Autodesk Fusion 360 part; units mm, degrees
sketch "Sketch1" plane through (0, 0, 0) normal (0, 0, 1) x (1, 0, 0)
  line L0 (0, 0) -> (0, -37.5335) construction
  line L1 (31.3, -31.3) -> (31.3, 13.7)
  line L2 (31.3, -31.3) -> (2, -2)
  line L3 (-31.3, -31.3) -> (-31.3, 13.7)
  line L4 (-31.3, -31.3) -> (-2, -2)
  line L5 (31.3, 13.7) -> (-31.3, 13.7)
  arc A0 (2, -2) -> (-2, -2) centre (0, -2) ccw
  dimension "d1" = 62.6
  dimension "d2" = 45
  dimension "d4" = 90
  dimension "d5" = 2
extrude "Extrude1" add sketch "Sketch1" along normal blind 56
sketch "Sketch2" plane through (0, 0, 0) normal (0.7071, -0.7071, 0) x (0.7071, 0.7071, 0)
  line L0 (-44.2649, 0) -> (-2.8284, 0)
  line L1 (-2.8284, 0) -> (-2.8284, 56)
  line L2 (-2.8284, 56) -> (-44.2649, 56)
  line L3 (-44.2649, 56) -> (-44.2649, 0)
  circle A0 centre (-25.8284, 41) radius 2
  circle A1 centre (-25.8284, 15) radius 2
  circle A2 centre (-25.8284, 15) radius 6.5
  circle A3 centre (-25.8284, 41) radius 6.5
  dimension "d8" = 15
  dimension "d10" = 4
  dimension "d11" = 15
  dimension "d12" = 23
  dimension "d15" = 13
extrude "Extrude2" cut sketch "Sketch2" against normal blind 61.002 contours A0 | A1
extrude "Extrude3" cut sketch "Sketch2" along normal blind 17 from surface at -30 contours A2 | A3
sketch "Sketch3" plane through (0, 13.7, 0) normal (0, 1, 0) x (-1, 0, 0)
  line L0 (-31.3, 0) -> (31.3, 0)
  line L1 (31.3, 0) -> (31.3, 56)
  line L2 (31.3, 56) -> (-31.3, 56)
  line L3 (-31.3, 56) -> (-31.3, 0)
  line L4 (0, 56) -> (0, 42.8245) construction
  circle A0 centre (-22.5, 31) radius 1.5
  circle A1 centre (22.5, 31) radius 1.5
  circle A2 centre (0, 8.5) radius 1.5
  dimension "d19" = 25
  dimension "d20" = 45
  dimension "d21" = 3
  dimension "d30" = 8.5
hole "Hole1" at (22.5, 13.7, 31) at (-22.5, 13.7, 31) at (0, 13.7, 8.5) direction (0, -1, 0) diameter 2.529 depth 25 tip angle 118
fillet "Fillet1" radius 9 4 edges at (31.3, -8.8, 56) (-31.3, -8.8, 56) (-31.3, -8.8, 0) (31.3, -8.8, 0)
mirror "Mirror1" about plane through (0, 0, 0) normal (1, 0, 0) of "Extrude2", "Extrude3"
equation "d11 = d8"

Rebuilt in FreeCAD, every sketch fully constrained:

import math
import FreeCAD as App
import Part
import Sketcher
Q = App.Units.Quantity


def edges_at(feature, points):
    """Names of the edges that pass closest to the given points."""
    edges = feature.Shape.Edges
    near = lambda p: min(range(len(edges)), key=lambda i: edges[i].distToShape(Part.Vertex(*p))[0])
    return sorted({f"Edge{near(p) + 1}" for p in points})

doc = App.newDocument("Part")
body = doc.addObject("PartDesign::Body", "Body")

sketch1 = body.newObject("Sketcher::SketchObject", "Sketch")
sketch1.AttachmentSupport = (doc.getObject("XY_Plane"), [""])
sketch1.MapMode = "FlatFace"
sketch1.addGeometry(Part.LineSegment(App.Vector(2, -2, 0), App.Vector(31.3, -31.3, 0)), False)
sketch1.addGeometry(Part.LineSegment(App.Vector(31.3, -31.3, 0), App.Vector(31.3, 13.7, 0)), False)
sketch1.addGeometry(Part.LineSegment(App.Vector(31.3, 13.7, 0), App.Vector(-31.3, 13.7, 0)), False)
sketch1.addGeometry(Part.LineSegment(App.Vector(-31.3, 13.7, 0), App.Vector(-31.3, -31.3, 0)), False)
sketch1.addGeometry(Part.LineSegment(App.Vector(-31.3, -31.3, 0), App.Vector(-2, -2, 0)), False)
sketch1.addGeometry(Part.ArcOfCircle(Part.Circle(App.Vector(0, -2, 0), App.Vector(0, 0, 1), 2), math.radians(0), math.radians(180)), False)
sketch1.addConstraint(Sketcher.Constraint("Coincident", 0, 2, 1, 1))
sketch1.addConstraint(Sketcher.Constraint("Coincident", 1, 2, 2, 1))
sketch1.addConstraint(Sketcher.Constraint("Coincident", 2, 2, 3, 1))
sketch1.addConstraint(Sketcher.Constraint("Coincident", 3, 2, 4, 1))
sketch1.addConstraint(Sketcher.Constraint("Coincident", 4, 2, 5, 2))
sketch1.addConstraint(Sketcher.Constraint("Coincident", 5, 1, 0, 1))
sketch1.addConstraint(Sketcher.Constraint("Vertical", 1))
sketch1.addConstraint(Sketcher.Constraint("Horizontal", 2))
sketch1.addConstraint(Sketcher.Constraint("Vertical", 3))
sketch1.addConstraint(Sketcher.Constraint("Symmetric", 0, 2, 3, 2, -2))
sketch1.addConstraint(Sketcher.Constraint("Symmetric", 4, 2, 5, 1, -2))
sketch1.addConstraint(Sketcher.Constraint("Perpendicular", 0, 4))
sketch1.addConstraint(Sketcher.Constraint("Horizontal", 5, 3, 4, 2))
sketch1.addConstraint(Sketcher.Constraint("Radius", 5, Q("2 mm")))
sketch1.addConstraint(Sketcher.Constraint("DistanceY", 1, 1, 1, 2, Q("45 mm")))
sketch1.addConstraint(Sketcher.Constraint("DistanceX", 2, 2, 2, 1, Q("62.6 mm")))
sketch1.addConstraint(Sketcher.Constraint("DistanceY", 5, 3, -1, 1, Q("2 mm")))
pad1 = body.newObject("PartDesign::Pad", "Pad")
pad1.Profile = sketch1
pad1.Length = 56

sketch2 = body.newObject("Sketcher::SketchObject", "Sketch001")
sketch2.Placement = App.Placement(App.Vector(0, 0, 0), App.Rotation(App.Vector(0.707106781, 0.707106781, 0), App.Vector(0, 0, 0.999999999), App.Vector(0.707106781, -0.707106781, 0), "ZXY"))
sketch2.addGeometry(Part.Circle(App.Vector(-25.8, 41, 0), App.Vector(0, 0, 1), 2), False)
sketch2.addGeometry(Part.Circle(App.Vector(-25.8, 15, 0), App.Vector(0, 0, 1), 2), False)
sketch2.addConstraint(Sketcher.Constraint("Equal", 0, 1))
sketch2.addConstraint(Sketcher.Constraint("Vertical", 0, 3, 1, 3))
sketch2.addConstraint(Sketcher.Constraint("Diameter", 0, Q("4 mm")))
sketch2.addConstraint(Sketcher.Constraint("DistanceY", -1, 1, 1, 3, Q("15 mm")))
sketch2.addConstraint(Sketcher.Constraint("DistanceY", -1, 1, 0, 3, Q("41 mm")))
sketch2.addConstraint(Sketcher.Constraint("DistanceX", 0, 3, -1, 1, Q("25.8284 mm")))
pocket1 = body.newObject("PartDesign::Pocket", "Pocket")
pocket1.Profile = sketch2
pocket1.Length = 61.002

sketch3 = body.newObject("Sketcher::SketchObject", "Sketch002")
sketch3.Placement = App.Placement(App.Vector(-21.213203, 21.213203, 0), App.Rotation(App.Vector(0.707106781, 0.707106781, 0), App.Vector(0, 0, 0.999999999), App.Vector(0.707106781, -0.707106781, 0), "ZXY"))
sketch3.addGeometry(Part.Circle(App.Vector(-25.8, 15, 0), App.Vector(0, 0, 1), 6.5), False)
sketch3.addGeometry(Part.Circle(App.Vector(-25.8, 15, 0), App.Vector(0, 0, 1), 2), False)
sketch3.addGeometry(Part.Circle(App.Vector(-25.8, 41, 0), App.Vector(0, 0, 1), 6.5), False)
sketch3.addGeometry(Part.Circle(App.Vector(-25.8, 41, 0), App.Vector(0, 0, 1), 2), False)
sketch3.addConstraint(Sketcher.Constraint("Coincident", 1, 3, 0, 3))
sketch3.addConstraint(Sketcher.Constraint("Coincident", 3, 3, 2, 3))
sketch3.addConstraint(Sketcher.Constraint("Equal", 0, 2))
sketch3.addConstraint(Sketcher.Constraint("Equal", 1, 3))
sketch3.addConstraint(Sketcher.Constraint("Vertical", 1, 3, 2, 3))
sketch3.addConstraint(Sketcher.Constraint("Diameter", 0, Q("13 mm")))
sketch3.addConstraint(Sketcher.Constraint("Diameter", 1, Q("4 mm")))
sketch3.addConstraint(Sketcher.Constraint("DistanceY", -1, 1, 0, 3, Q("15 mm")))
sketch3.addConstraint(Sketcher.Constraint("DistanceY", -1, 1, 2, 3, Q("41 mm")))
sketch3.addConstraint(Sketcher.Constraint("DistanceX", 0, 3, -1, 1, Q("25.8284 mm")))
pocket2 = body.newObject("PartDesign::Pocket", "Pocket001")
pocket2.Profile = sketch3
pocket2.Length = 17
pocket2.Reversed = True

sketch4 = body.newObject("Sketcher::SketchObject", "Sketch003")
sketch4.AttachmentSupport = (doc.getObject("XZ_Plane"), [""])
sketch4.MapMode = "FlatFace"
sketch4.AttachmentOffset = App.Placement(App.Vector(0, 0, -13.7), App.Rotation())
sketch4.addGeometry(Part.Circle(App.Vector(22.5, 31, 0), App.Vector(0, 0, 1), 1.3), False)
sketch4.addGeometry(Part.Circle(App.Vector(-22.5, 31, 0), App.Vector(0, 0, 1), 1.3), False)
sketch4.addGeometry(Part.Circle(App.Vector(0, 8.5, 0), App.Vector(0, 0, 1), 1.3), False)
sketch4.addConstraint(Sketcher.Constraint("Equal", 0, 1))
sketch4.addConstraint(Sketcher.Constraint("Equal", 1, 2))
sketch4.addConstraint(Sketcher.Constraint("Symmetric", 0, 3, 1, 3, -2))
sketch4.addConstraint(Sketcher.Constraint("PointOnObject", 2, 3, -2))
sketch4.addConstraint(Sketcher.Constraint("Diameter", 0, Q("2.529 mm")))
sketch4.addConstraint(Sketcher.Constraint("DistanceY", -1, 1, 0, 3, Q("31 mm")))
sketch4.addConstraint(Sketcher.Constraint("DistanceX", 1, 3, 0, 3, Q("45 mm")))
sketch4.addConstraint(Sketcher.Constraint("DistanceY", -1, 1, 2, 3, Q("8.5 mm")))
doc.recompute()
hole = body.newObject("PartDesign::Hole", "Hole")
hole.Profile = sketch4
hole.ThreadType = "None"
hole.Diameter = 2.529
hole.DepthType = "Dimension"
hole.Depth = 25
hole.DrillPoint = "Angled"
hole.DrillPointAngle = 118
hole.Reversed = True
doc.recompute()

fillet = body.newObject("PartDesign::Fillet", "Fillet")
fillet.Base = (hole, edges_at(hole, [
    (31.3, -8.8, 56),
    (-31.3, -8.8, 56),
    (-31.3, -8.8, 0),
    (31.3, -8.8, 0),
]))
fillet.Radius = 9
doc.recompute()

mirrored = body.newObject("PartDesign::Mirrored", "Mirrored")
mirrored.Originals = [pocket1, pocket2]
mirrored.MirrorPlane = (doc.getObject("YZ_Plane"), [""])
body.Tip = mirrored

doc.recompute()
